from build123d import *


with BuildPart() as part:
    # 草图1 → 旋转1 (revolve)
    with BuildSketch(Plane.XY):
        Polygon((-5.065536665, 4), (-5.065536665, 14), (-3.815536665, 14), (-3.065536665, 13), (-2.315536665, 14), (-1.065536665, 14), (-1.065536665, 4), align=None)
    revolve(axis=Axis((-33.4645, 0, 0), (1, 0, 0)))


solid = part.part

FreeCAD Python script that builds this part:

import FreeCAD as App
import Part
import Sketcher
from FreeCAD import Vector

doc = App.newDocument("Part")
params = doc.addObject("Spreadsheet::Sheet", "Params")
for row, (alias, value) in enumerate([
    ("sketch1_width", "4 mm"),
    ("sketch1_height", "10 mm"),
    ("sketch1_width2", "1.25 mm"),
    ("revolution_angle", "360 deg"),
], start=1):
    params.set(f"A{row}", alias)
    params.set(f"B{row}", "=" + value)
    params.setAlias(f"B{row}", alias)

body = doc.addObject("PartDesign::Body", "Body")

# Sketch on XY plane
sketch1 = body.newObject("Sketcher::SketchObject", "Sketch")
sketch1.AttachmentSupport = (doc.getObject("XY_Plane"), [""])
sketch1.MapMode = "FlatFace"
sketch1.addGeometry(Part.LineSegment(Vector(-5.1, 14, 0), Vector(-5.1, 4, 0)), False)
sketch1.addGeometry(Part.LineSegment(Vector(-5.1, 4, 0), Vector(-1.1, 4, 0)), False)
sketch1.addGeometry(Part.LineSegment(Vector(-1.1, 4, 0), Vector(-1.1, 14, 0)), False)
sketch1.addGeometry(Part.LineSegment(Vector(-1.1, 14, 0), Vector(-2.3, 14, 0)), False)
sketch1.addGeometry(Part.LineSegment(Vector(-2.3, 14, 0), Vector(-3.1, 13, 0)), False)
sketch1.addGeometry(Part.LineSegment(Vector(-3.1, 13, 0), Vector(-3.8, 14, 0)), False)
sketch1.addGeometry(Part.LineSegment(Vector(-3.8, 14, 0), Vector(-5.1, 14, 0)), False)
sketch1.addConstraint(Sketcher.Constraint("Coincident", 0, 2, 1, 1))
sketch1.addConstraint(Sketcher.Constraint("Coincident", 1, 2, 2, 1))
sketch1.addConstraint(Sketcher.Constraint("Coincident", 2, 2, 3, 1))
sketch1.addConstraint(Sketcher.Constraint("Coincident", 3, 2, 4, 1))
sketch1.addConstraint(Sketcher.Constraint("Coincident", 4, 2, 5, 1))
sketch1.addConstraint(Sketcher.Constraint("Coincident", 5, 2, 6, 1))
sketch1.addConstraint(Sketcher.Constraint("Coincident", 6, 2, 0, 1))
sketch1.addConstraint(Sketcher.Constraint("Vertical", 0))
sketch1.addConstraint(Sketcher.Constraint("Horizontal", 1))
sketch1.addConstraint(Sketcher.Constraint("Vertical", 2))
sketch1.addConstraint(Sketcher.Constraint("Horizontal", 3))
sketch1.addConstraint(Sketcher.Constraint("Horizontal", 6))
sketch1.addConstraint(Sketcher.Constraint("Horizontal", 3, 2, 5, 2))
sketch1.addConstraint(Sketcher.Constraint("Equal", 3, 6))
sketch1.addConstraint(Sketcher.Constraint("Equal", 4, 5))
sketch1.addConstraint(Sketcher.Constraint("DistanceX", 1, 1, 1, 2, 4.0))
sketch1.addConstraint(Sketcher.Constraint("DistanceY", 0, 2, 0, 1, 10.0))
sketch1.addConstraint(Sketcher.Constraint("DistanceY", -1, 1, 0, 2, 4.0))
sketch1.addConstraint(Sketcher.Constraint("DistanceY", -1, 1, 4, 2, 13.0))
sketch1.addConstraint(Sketcher.Constraint("DistanceX", 3, 2, 3, 1, 1.25))
sketch1.addConstraint(Sketcher.Constraint("DistanceX", 0, 2, -1, 1, 5.065537))
sketch1.setExpression("Constraints[15]", "Params.sketch1_width")
sketch1.setExpression("Constraints[16]", "Params.sketch1_height")
sketch1.setExpression("Constraints[19]", "Params.sketch1_width2")
revolution = body.newObject("PartDesign::Revolution", "Revolution")
revolution.Profile = sketch1
revolution.ReferenceAxis = (sketch1, ["H_Axis"])
revolution.setExpression("Angle", "Params.revolution_angle")

doc.recompute()
